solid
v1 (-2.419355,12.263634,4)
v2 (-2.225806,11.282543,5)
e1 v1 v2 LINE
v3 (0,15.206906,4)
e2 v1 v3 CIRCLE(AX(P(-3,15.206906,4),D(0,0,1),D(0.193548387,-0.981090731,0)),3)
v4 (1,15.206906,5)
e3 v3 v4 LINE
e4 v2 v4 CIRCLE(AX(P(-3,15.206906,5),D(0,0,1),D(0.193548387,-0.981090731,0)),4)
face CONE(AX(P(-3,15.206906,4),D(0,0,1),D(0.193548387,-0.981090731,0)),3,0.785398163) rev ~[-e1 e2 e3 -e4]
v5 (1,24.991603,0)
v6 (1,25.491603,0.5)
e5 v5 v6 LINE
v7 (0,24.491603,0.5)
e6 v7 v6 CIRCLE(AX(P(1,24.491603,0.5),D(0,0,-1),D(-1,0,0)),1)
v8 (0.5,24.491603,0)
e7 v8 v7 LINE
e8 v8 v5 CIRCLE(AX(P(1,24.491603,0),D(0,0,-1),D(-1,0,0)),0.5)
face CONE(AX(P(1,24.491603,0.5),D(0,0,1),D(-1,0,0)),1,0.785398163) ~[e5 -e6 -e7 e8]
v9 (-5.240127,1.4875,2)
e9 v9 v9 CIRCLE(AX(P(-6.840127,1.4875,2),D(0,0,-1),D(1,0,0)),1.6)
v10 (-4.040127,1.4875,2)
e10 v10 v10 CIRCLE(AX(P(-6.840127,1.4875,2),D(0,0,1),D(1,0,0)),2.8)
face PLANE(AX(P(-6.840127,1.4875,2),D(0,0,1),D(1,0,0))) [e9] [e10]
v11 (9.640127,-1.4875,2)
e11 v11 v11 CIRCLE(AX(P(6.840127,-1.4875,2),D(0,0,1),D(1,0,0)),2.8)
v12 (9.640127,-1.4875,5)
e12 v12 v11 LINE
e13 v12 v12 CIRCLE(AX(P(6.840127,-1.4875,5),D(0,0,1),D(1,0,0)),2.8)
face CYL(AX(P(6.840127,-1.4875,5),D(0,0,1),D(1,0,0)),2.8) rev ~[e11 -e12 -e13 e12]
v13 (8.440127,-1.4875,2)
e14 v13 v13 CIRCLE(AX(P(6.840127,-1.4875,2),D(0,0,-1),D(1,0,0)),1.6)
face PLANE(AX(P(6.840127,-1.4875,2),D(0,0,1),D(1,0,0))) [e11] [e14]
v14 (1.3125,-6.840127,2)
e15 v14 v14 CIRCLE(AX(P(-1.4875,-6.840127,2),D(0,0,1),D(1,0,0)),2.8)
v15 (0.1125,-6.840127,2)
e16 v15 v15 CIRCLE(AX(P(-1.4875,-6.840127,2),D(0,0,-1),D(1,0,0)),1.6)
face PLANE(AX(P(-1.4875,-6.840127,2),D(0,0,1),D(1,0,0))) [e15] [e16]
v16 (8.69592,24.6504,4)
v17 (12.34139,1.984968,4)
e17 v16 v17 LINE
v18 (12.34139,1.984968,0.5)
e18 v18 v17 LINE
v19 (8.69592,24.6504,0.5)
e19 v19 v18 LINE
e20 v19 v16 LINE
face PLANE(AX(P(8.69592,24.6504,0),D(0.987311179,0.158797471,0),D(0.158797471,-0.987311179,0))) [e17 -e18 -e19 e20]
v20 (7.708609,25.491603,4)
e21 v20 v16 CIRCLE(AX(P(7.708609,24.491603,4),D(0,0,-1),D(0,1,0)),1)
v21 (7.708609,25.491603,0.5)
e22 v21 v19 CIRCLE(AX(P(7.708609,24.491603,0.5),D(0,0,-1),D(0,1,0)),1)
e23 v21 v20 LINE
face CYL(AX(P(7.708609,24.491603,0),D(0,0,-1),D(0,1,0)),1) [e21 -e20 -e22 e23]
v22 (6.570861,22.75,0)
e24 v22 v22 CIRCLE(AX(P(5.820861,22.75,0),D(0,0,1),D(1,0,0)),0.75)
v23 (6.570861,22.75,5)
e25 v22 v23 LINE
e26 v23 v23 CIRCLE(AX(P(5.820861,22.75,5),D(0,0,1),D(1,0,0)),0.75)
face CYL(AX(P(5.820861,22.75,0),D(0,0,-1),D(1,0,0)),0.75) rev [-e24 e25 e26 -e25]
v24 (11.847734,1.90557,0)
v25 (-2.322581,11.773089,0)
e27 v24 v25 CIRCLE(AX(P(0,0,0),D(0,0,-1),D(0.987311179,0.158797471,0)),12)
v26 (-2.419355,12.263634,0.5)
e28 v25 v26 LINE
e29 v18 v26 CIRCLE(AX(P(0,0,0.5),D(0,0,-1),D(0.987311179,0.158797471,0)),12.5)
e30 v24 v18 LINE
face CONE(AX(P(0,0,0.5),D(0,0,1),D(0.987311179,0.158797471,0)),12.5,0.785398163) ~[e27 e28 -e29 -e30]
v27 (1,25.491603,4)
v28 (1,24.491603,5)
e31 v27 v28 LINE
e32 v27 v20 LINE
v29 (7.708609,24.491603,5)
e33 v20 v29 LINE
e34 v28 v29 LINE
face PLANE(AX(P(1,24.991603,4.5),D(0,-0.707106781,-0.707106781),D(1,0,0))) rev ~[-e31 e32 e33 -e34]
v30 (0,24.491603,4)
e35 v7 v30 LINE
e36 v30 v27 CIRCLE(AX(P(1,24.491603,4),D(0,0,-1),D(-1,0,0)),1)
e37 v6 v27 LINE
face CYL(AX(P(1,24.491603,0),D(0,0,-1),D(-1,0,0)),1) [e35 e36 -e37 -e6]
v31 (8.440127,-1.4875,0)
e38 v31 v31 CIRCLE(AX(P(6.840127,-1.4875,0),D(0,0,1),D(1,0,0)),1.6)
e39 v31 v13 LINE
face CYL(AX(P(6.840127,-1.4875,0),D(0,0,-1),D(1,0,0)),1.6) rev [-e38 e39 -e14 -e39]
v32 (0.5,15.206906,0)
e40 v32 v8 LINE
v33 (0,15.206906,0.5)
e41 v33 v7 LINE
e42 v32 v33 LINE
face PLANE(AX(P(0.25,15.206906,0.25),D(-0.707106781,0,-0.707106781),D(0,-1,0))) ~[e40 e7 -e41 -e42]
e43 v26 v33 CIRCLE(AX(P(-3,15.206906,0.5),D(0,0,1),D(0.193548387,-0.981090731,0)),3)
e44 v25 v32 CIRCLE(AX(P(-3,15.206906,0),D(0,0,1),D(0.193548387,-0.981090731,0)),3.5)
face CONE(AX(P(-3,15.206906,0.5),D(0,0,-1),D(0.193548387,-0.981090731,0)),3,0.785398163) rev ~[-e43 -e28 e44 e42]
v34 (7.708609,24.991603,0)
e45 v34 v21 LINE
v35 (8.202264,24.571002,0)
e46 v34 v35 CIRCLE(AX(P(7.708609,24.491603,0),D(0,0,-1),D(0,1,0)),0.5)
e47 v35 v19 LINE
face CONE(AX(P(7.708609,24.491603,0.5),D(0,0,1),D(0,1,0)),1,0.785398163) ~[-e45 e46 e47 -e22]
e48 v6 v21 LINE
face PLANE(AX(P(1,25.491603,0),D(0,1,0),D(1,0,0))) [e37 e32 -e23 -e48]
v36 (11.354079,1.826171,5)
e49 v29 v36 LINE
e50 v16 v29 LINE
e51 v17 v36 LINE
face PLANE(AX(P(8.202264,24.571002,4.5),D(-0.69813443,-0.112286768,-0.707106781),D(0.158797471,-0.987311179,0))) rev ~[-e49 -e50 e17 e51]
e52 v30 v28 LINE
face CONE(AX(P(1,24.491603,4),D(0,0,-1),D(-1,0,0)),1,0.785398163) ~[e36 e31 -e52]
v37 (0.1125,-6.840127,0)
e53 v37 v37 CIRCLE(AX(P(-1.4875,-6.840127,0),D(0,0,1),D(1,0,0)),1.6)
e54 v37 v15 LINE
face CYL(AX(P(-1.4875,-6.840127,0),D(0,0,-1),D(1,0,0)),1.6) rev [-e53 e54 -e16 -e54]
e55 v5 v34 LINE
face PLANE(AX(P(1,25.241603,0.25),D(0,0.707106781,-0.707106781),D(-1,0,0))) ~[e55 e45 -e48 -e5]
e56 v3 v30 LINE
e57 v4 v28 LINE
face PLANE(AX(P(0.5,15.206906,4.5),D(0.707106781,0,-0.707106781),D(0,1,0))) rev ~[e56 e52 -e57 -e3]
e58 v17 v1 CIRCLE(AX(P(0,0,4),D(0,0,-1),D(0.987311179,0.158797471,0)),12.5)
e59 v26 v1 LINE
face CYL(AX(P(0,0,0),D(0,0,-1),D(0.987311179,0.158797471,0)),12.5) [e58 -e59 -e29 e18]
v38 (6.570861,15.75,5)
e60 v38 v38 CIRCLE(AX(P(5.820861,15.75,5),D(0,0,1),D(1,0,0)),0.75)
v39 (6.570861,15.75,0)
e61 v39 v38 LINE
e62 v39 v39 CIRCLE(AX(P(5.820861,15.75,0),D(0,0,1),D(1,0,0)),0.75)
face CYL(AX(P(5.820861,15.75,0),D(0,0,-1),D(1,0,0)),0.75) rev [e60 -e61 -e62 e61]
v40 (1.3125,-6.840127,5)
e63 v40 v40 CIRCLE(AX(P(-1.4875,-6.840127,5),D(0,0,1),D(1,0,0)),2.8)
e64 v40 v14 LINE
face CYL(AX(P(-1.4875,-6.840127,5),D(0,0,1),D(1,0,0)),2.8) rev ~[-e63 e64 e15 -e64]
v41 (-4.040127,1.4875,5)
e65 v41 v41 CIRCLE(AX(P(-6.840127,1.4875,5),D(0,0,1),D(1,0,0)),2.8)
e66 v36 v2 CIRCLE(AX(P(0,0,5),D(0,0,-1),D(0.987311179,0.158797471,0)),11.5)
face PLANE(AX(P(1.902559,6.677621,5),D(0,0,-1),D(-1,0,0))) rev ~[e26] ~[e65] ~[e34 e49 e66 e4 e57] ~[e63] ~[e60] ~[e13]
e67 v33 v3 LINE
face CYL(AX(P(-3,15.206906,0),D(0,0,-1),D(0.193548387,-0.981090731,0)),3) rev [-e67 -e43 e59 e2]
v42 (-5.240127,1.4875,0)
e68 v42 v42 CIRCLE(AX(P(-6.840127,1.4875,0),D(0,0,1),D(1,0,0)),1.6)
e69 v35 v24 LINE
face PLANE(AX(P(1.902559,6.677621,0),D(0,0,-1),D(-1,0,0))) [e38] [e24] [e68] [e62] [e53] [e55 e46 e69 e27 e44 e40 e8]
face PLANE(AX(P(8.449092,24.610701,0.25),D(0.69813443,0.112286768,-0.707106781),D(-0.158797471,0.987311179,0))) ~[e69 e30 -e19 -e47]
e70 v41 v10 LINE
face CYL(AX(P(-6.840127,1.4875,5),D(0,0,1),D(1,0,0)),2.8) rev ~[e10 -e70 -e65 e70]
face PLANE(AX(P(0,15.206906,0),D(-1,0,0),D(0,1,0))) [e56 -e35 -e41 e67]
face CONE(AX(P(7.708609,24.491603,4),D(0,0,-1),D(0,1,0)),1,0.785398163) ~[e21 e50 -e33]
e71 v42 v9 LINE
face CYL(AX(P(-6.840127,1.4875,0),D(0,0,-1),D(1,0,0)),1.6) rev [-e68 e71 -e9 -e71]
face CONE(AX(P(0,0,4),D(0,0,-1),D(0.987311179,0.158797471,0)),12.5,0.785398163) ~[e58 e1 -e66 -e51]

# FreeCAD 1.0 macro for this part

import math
import FreeCAD as App
import Part
import Sketcher

V = App.Vector


def edges_at(feature, points):
    """Names of the edges that pass closest to the given points."""
    edges = feature.Shape.Edges
    near = lambda p: min(range(len(edges)), key=lambda i: edges[i].distToShape(Part.Vertex(*p))[0])
    return sorted({f"Edge{near(p) + 1}" for p in points})

doc = App.newDocument("Part")
body = doc.addObject("PartDesign::Body", "Body")

# Sketch on XY plane
sketch1 = body.newObject("Sketcher::SketchObject", "Sketch")
sketch1.AttachmentSupport = (doc.getObject("XY_Plane"), [""])
sketch1.MapMode = "FlatFace"
sketch1.addGeometry([
    Part.LineSegment(V(7.7, 25.5, 0), V(1, 25.5, 0)),  # 0
    Part.ArcOfCircle(Part.Circle(V(1, 24.5, 0), V(0, 0, 1), 1), math.radians(90), math.radians(180)),  # 1
    Part.LineSegment(V(0, 24.5, 0), V(0, 15.2, 0)),  # 2
    Part.ArcOfCircle(Part.Circle(V(-3, 15.2, 0), V(0, 0, 1), 3), math.radians(-79), math.radians(0)),  # 3
    Part.ArcOfCircle(Part.Circle(V(0, 0, 0), V(0, 0, 1), 12.5), math.radians(101), math.radians(369)),  # 4
    Part.LineSegment(V(12.3, 2, 0), V(8.7, 24.7, 0)),  # 5
    Part.ArcOfCircle(Part.Circle(V(7.7, 24.5, 0), V(0, 0, 1), 1), math.radians(9), math.radians(90)),  # 6
    Part.Circle(V(6.8, -1.5, 0), V(0, 0, 1), 1.6),  # 7
    Part.Circle(V(-1.5, -6.8, 0), V(0, 0, 1), 1.6),  # 8
    Part.Circle(V(-6.8, 1.5, 0), V(0, 0, 1), 1.6),  # 9
    Part.Circle(V(5.8, 15.8, 0), V(0, 0, 1), 0.8),  # 10
    Part.Circle(V(5.8, 22.8, 0), V(0, 0, 1), 0.8),  # 11
], False)
sketch1.addConstraint([
    Sketcher.Constraint("Tangent", 0, 2, 1, 1),
    Sketcher.Constraint("Tangent", 1, 2, 2, 1),
    Sketcher.Constraint("Tangent", 2, 2, 3, 2),
    Sketcher.Constraint("Tangent", 3, 1, 4, 1),
    Sketcher.Constraint("Tangent", 4, 2, 5, 1),
    Sketcher.Constraint("Tangent", 5, 2, 6, 1),
    Sketcher.Constraint("Tangent", 6, 2, 0, 1),
    Sketcher.Constraint("Horizontal", 0),
    Sketcher.Constraint("Vertical", 2),
    Sketcher.Constraint("Coincident", 4, 3, -1, 1),
    Sketcher.Constraint("Equal", 1, 6),
    Sketcher.Constraint("Equal", 7, 8),
    Sketcher.Constraint("Equal", 8, 9),
    Sketcher.Constraint("Equal", 10, 11),
    Sketcher.Constraint("Symmetric", 7, 3, 9, 3, -1, 1),
    Sketcher.Constraint("PointOnObject", 1, 2, -2),
    Sketcher.Constraint("Vertical", 10, 3, 11, 3),
    Sketcher.Constraint("Radius", 1, 1.0),
    Sketcher.Constraint("Radius", 3, 3.0),
    Sketcher.Constraint("Diameter", 7, 3.2),
    Sketcher.Constraint("Diameter", 10, 1.5),
    Sketcher.Constraint("Radius", 4, 12.5),
    Sketcher.Constraint("DistanceY", 10, 3, 11, 3, 7.0),
    Sketcher.Constraint("DistanceY", -1, 1, 10, 3, 15.75),
    Sketcher.Constraint("DistanceY", 7, 3, 9, 3, 2.975),
    Sketcher.Constraint("DistanceX", 0, 2, 0, 1, 6.708609),
    Sketcher.Constraint("DistanceX", 8, 3, -1, 1, 1.4875),
    Sketcher.Constraint("DistanceY", -1, 1, 5, 2, 24.6504),
    Sketcher.Constraint("DistanceX", -1, 1, 10, 3, 5.820861),
    Sketcher.Constraint("DistanceX", 7, 3, 6, 3, 0.868481),
    Sketcher.Constraint("DistanceY", 8, 3, 1, 3, 31.33173),
])
pad1 = body.newObject("PartDesign::Pad", "Pad")
pad1.Profile = sketch1
pad1.Length = 5
doc.recompute()

chamfer = body.newObject("PartDesign::Chamfer", "Chamfer")
chamfer.Base = (pad1, edges_at(pad1, [
    (-0.682, 13.302, 5),
    (-7.143, -10.258, 5),
    (10.519, 13.318, 5),
    (8.357, 25.253, 5),
    (4.354, 25.492, 5),
    (0.293, 25.199, 5),
    (0, 19.849, 5),
]))
chamfer.Size = 1

# Sketch on XY plane
sketch2 = body.newObject("Sketcher::SketchObject", "Sketch001")
sketch2.AttachmentSupport = (doc.getObject("XY_Plane"), [""])
sketch2.MapMode = "FlatFace"
sketch2.AttachmentOffset = App.Placement(V(0, 0, 5), App.Rotation())
sketch2.addGeometry([
    Part.Circle(V(-6.8, 1.5, 0), V(0, 0, 1), 2.8),
    Part.Circle(V(-1.5, -6.8, 0), V(0, 0, 1), 2.8),
    Part.Circle(V(6.8, -1.5, 0), V(0, 0, 1), 2.8),
], False)
sketch2.addConstraint([
    Sketcher.Constraint("Equal", 0, 1),
    Sketcher.Constraint("Equal", 1, 2),
    Sketcher.Constraint("Symmetric", 0, 3, 2, 3, -1, 1),
    Sketcher.Constraint("Diameter", 0, 5.6),
    Sketcher.Constraint("DistanceY", 2, 3, 0, 3, 2.975),
    Sketcher.Constraint("DistanceX", 1, 3, -1, 1, 1.4875),
    Sketcher.Constraint("DistanceX", 0, 3, -1, 1, 6.840127),
    Sketcher.Constraint("DistanceY", 1, 3, -1, 1, 6.840127),
])
pocket1 = body.newObject("PartDesign::Pocket", "Pocket")
pocket1.Profile = sketch2
pocket1.Length = 3
doc.recompute()

chamfer2 = body.newObject("PartDesign::Chamfer", "Chamfer001")
chamfer2.Base = (pocket1, edges_at(pocket1, [
    (0, 19.849, 0),
    (0.293, 25.199, 0),
    (4.354, 25.492, 0),
    (8.357, 25.253, 0),
    (10.519, 13.318, 0),
    (-7.143, -10.258, 0),
    (-0.682, 13.302, 0),
]))
chamfer2.Size = 0.5

doc.recompute()
